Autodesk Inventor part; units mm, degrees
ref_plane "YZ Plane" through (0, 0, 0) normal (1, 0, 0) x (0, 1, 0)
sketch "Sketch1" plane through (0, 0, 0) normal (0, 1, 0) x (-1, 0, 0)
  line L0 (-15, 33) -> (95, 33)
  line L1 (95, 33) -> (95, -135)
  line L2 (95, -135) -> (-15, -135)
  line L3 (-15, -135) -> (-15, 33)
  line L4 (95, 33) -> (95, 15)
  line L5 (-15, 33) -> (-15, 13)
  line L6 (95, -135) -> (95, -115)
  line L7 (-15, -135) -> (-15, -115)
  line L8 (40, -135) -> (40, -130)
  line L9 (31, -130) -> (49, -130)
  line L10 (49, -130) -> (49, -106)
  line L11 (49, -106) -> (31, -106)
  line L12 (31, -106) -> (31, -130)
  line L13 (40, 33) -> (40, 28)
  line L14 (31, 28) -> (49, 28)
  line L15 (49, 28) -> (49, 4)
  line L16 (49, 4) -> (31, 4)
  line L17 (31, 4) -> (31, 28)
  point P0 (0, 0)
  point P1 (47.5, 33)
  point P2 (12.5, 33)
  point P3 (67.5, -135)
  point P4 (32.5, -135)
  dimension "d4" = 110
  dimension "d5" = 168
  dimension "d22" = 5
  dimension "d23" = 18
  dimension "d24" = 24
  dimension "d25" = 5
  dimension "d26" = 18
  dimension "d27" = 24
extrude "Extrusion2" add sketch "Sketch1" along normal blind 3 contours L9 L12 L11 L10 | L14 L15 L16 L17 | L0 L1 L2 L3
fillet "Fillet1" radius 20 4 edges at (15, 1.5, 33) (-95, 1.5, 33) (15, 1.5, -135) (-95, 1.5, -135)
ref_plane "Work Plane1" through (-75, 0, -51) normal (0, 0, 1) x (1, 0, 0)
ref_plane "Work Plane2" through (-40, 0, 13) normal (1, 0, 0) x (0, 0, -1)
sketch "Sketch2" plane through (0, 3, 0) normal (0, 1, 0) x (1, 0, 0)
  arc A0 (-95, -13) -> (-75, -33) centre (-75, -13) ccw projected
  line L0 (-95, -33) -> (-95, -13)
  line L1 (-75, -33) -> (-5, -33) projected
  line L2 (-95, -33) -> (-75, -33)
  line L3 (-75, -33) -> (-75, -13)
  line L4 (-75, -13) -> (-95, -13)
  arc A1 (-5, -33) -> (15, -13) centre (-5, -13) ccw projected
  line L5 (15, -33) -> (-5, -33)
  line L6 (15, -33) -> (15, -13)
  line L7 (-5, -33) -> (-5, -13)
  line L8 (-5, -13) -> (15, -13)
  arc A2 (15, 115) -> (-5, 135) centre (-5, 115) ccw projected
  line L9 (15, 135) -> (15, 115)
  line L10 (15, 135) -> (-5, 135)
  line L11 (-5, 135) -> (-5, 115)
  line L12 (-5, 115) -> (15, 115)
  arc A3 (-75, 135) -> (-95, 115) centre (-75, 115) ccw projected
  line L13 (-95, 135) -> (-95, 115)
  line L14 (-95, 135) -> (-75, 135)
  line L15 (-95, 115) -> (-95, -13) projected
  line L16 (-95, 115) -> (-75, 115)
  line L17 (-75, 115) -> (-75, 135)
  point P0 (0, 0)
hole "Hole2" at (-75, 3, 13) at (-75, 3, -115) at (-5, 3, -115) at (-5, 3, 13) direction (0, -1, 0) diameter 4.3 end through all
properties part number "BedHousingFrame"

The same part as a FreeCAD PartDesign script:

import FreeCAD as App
import Part
import Sketcher
from FreeCAD import Vector
Q = App.Units.Quantity


def edges_at(feature, points):
    """Names of the edges that pass closest to the given points."""
    edges = feature.Shape.Edges
    near = lambda p: min(range(len(edges)), key=lambda i: edges[i].distToShape(Part.Vertex(*p))[0])
    return sorted({f"Edge{near(p) + 1}" for p in points})


def add_polygon(sketch, points):
    """Adds a closed chain of lines whose ends are joined by coincident constraints."""
    first, n = sketch.GeometryCount, len(points)
    for a, b in zip(points, points[1:] + points[:1]):
        sketch.addGeometry(Part.LineSegment(App.Vector(*a, 0), App.Vector(*b, 0)), False)
    for i in range(n):
        sketch.addConstraint(Sketcher.Constraint("Coincident", first + i, 2, first + (i + 1) % n, 1))

doc = App.newDocument("Part")
body = doc.addObject("PartDesign::Body", "Body")

sketch1 = doc.addObject("Sketcher::SketchObject", "Sketch")
body.addObject(sketch1)
sketch1.AttachmentSupport = (doc.XZ_Plane, [""])
sketch1.MapMode = "FlatFace"
add_polygon(sketch1, [(-40, 33), (15, 33), (15, -135), (-40, -135), (-95, -135), (-95, 33)])
sketch1.addConstraint(Sketcher.Constraint("Horizontal", 0))
sketch1.addConstraint(Sketcher.Constraint("Vertical", 1))
sketch1.addConstraint(Sketcher.Constraint("Horizontal", 2))
sketch1.addConstraint(Sketcher.Constraint("Horizontal", 3))
sketch1.addConstraint(Sketcher.Constraint("Vertical", 4))
sketch1.addConstraint(Sketcher.Constraint("Horizontal", 5))
sketch1.addConstraint(Sketcher.Constraint("Vertical", 2, 2, 5, 2))
sketch1.addConstraint(Sketcher.Constraint("Equal", 2, 3))
sketch1.addConstraint(Sketcher.Constraint("DistanceY", 1, 2, 1, 1, Q("168 mm")))
sketch1.addConstraint(Sketcher.Constraint("DistanceX", 3, 2, 1, 2, Q("110 mm")))
sketch1.addConstraint(Sketcher.Constraint("DistanceX", -1, 1, 0, 2, Q("15 mm")))
sketch1.addConstraint(Sketcher.Constraint("DistanceY", -1, 1, 0, 2, Q("33 mm")))
pad1 = doc.addObject("PartDesign::Pad", "Pad")
body.addObject(pad1)
pad1.Profile = sketch1
pad1.Length = 3
pad1.Reversed = True
doc.recompute()

fillet = doc.addObject("PartDesign::Fillet", "Fillet")
body.addObject(fillet)
fillet.Base = (pad1, edges_at(pad1, [
    (15, 1.5, 33),
    (-95, 1.5, 33),
    (15, 1.5, -135),
    (-95, 1.5, -135),
]))
fillet.Radius = 20

sketch2 = doc.addObject("Sketcher::SketchObject", "Sketch001")
body.addObject(sketch2)
sketch2.AttachmentSupport = (doc.XZ_Plane, [""])
sketch2.MapMode = "FlatFace"
sketch2.AttachmentOffset = App.Placement(Vector(0, 0, -3), App.Rotation())
sketch2.addGeometry(Part.Circle(Vector(-75, 13, 0), Vector(0, 0, 1), 2.15), False)
sketch2.addGeometry(Part.Circle(Vector(-75, -115, 0), Vector(0, 0, 1), 2.15), False)
sketch2.addGeometry(Part.Circle(Vector(-5, -115, 0), Vector(0, 0, 1), 2.15), False)
sketch2.addGeometry(Part.Circle(Vector(-5, 13, 0), Vector(0, 0, 1), 2.15), False)
sketch2.addConstraint(Sketcher.Constraint("Equal", 0, 1))
sketch2.addConstraint(Sketcher.Constraint("Equal", 1, 2))
sketch2.addConstraint(Sketcher.Constraint("Equal", 2, 3))
sketch2.addConstraint(Sketcher.Constraint("Horizontal", 1, 3, 2, 3))
sketch2.addConstraint(Sketcher.Constraint("Horizontal", 0, 3, 3, 3))
sketch2.addConstraint(Sketcher.Constraint("Vertical", 0, 3, 1, 3))
sketch2.addConstraint(Sketcher.Constraint("Vertical", 2, 3, 3, 3))
sketch2.addConstraint(Sketcher.Constraint("Diameter", 0, Q("4.3 mm")))
sketch2.addConstraint(Sketcher.Constraint("DistanceX", 0, 3, -1, 1, Q("75 mm")))
sketch2.addConstraint(Sketcher.Constraint("DistanceY", -1, 1, 0, 3, Q("13 mm")))
sketch2.addConstraint(Sketcher.Constraint("DistanceY", 1, 3, -1, 1, Q("115 mm")))
sketch2.addConstraint(Sketcher.Constraint("DistanceX", 2, 3, -1, 1, Q("5 mm")))
doc.recompute()
hole = doc.addObject("PartDesign::Hole", "Hole")
body.addObject(hole)
hole.Profile = sketch2
hole.ThreadType = "None"
hole.Diameter = 4.3
hole.DepthType = "ThroughAll"
hole.Reversed = True

doc.recompute()
